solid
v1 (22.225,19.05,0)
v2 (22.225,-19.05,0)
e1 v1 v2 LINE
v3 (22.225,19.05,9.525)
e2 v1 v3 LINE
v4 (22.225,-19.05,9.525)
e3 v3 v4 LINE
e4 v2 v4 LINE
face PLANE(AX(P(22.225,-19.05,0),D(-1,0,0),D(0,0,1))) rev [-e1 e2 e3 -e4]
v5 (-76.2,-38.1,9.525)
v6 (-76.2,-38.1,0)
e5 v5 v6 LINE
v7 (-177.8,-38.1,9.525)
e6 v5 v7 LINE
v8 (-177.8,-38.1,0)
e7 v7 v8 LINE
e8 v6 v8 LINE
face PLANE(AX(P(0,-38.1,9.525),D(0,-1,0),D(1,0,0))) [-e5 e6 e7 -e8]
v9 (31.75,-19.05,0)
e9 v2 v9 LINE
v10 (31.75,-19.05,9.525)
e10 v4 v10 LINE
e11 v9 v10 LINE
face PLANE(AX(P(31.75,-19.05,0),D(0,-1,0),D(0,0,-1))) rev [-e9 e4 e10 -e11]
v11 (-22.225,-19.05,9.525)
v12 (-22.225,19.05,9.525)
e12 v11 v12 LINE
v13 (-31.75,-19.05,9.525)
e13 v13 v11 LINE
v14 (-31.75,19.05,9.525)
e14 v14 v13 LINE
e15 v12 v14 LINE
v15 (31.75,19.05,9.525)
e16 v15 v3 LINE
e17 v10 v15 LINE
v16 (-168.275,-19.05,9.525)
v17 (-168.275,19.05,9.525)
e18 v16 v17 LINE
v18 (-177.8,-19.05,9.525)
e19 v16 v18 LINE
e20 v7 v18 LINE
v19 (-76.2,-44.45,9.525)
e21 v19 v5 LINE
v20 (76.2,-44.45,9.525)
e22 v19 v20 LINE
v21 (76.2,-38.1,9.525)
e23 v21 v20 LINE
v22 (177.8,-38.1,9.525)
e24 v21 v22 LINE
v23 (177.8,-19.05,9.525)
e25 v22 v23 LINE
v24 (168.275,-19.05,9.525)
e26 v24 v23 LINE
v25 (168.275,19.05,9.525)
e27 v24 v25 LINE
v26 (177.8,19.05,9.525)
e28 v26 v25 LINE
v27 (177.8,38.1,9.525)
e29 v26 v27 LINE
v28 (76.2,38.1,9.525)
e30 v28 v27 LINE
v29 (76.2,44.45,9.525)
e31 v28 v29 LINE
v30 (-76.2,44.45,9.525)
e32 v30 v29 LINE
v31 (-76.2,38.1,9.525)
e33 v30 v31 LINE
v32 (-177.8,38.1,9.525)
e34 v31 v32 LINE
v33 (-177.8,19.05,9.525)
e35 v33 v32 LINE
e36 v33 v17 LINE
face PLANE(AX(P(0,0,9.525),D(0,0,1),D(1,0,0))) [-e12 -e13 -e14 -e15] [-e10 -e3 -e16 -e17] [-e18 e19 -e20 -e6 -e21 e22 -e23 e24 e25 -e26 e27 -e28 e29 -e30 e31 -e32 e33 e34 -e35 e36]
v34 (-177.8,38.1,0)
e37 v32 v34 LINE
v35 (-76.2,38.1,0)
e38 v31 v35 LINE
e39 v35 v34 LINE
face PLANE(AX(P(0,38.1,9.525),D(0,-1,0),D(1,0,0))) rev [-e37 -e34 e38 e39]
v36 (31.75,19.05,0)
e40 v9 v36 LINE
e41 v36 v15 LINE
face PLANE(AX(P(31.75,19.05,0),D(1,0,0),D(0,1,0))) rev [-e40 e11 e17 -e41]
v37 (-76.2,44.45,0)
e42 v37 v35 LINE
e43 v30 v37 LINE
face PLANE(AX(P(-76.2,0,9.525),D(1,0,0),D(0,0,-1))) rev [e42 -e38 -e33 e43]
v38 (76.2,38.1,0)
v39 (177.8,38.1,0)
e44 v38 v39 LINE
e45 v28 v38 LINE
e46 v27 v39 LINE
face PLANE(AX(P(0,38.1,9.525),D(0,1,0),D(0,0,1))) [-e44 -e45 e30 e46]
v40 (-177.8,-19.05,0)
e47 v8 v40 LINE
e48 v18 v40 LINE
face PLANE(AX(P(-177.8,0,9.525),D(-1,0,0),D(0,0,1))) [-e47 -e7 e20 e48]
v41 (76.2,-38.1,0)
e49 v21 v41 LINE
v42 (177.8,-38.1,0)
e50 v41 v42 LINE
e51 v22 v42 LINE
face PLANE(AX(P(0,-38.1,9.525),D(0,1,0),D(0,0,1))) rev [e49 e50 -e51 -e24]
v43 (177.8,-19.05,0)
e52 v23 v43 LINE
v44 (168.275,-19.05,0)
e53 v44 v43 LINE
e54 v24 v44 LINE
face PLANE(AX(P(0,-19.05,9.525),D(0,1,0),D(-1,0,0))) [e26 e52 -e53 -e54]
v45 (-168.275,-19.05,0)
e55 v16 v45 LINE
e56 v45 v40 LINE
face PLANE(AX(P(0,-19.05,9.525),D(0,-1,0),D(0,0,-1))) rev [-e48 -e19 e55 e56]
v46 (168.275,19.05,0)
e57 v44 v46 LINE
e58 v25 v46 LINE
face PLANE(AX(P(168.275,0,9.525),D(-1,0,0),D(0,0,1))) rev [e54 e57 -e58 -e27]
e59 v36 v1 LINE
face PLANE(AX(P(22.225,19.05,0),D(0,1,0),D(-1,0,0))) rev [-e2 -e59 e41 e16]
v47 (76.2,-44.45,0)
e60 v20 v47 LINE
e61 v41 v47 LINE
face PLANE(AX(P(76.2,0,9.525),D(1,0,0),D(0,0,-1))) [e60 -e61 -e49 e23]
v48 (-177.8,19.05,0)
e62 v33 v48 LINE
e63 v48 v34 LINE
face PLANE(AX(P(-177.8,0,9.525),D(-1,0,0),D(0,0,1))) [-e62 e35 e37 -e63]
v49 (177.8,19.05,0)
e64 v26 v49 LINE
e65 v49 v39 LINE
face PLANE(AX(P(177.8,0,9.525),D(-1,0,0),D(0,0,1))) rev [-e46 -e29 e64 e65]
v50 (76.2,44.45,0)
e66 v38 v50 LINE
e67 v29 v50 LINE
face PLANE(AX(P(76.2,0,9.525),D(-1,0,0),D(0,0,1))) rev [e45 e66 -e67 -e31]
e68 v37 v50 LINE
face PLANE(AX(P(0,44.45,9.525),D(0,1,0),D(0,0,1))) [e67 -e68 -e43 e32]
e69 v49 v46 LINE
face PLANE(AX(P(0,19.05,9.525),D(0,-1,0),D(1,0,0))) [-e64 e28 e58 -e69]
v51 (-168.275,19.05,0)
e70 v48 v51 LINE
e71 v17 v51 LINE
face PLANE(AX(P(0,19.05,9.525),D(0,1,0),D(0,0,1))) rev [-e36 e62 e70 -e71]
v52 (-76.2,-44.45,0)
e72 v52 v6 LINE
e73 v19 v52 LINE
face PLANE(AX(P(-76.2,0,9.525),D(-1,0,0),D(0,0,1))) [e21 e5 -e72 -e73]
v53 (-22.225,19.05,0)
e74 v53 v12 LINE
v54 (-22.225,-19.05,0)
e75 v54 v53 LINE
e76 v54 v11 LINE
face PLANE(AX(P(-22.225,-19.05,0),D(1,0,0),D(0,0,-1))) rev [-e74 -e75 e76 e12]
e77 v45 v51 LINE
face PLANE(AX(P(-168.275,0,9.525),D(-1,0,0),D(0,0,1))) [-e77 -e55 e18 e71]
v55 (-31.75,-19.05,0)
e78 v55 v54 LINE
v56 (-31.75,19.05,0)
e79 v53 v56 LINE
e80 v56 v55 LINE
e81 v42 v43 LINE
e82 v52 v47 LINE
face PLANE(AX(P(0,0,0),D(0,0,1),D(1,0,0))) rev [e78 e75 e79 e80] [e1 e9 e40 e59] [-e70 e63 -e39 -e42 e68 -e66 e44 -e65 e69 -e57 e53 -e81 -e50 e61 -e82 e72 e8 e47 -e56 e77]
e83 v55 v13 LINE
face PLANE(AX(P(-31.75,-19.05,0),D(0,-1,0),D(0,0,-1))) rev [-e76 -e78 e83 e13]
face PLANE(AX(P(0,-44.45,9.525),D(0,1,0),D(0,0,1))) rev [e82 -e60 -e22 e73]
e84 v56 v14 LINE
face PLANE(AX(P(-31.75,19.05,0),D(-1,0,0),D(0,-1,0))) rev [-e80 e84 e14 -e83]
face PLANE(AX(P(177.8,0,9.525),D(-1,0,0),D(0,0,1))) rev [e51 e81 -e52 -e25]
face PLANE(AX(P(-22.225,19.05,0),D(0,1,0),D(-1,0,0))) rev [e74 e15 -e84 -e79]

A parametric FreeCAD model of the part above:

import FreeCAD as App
import Part
import Sketcher

V = App.Vector
Q = App.Units.Quantity


def add_polygon(sketch, points):
    """Adds a closed chain of lines whose ends are joined by coincident constraints."""
    first, n = sketch.GeometryCount, len(points)
    for a, b in zip(points, points[1:] + points[:1]):
        sketch.addGeometry(Part.LineSegment(App.Vector(*a, 0), App.Vector(*b, 0)), False)
    for i in range(n):
        sketch.addConstraint(Sketcher.Constraint("Coincident", first + i, 2, first + (i + 1) % n, 1))

doc = App.newDocument("Part")
body = doc.addObject("PartDesign::Body", "Body")

sketch1 = body.newObject("Sketcher::SketchObject", "Sketch")
sketch1.AttachmentSupport = (doc.getObject("XY_Plane"), [""])
sketch1.MapMode = "FlatFace"
add_polygon(sketch1, [(-76, -38), (-76, -44), (76, -44), (76, -38), (178, -38), (178, -19), (168, -19), (168, 19), (178, 19), (178, 38), (76, 38), (76, 44), (-76, 44), (-76, 38), (-178, 38), (-178, 19), (-168, 19), (-168, -19), (-178, -19), (-178, -38)])
sketch1.addConstraint(Sketcher.Constraint("Vertical", 0))
sketch1.addConstraint(Sketcher.Constraint("Horizontal", 1))
sketch1.addConstraint(Sketcher.Constraint("Vertical", 2))
sketch1.addConstraint(Sketcher.Constraint("Horizontal", 3))
sketch1.addConstraint(Sketcher.Constraint("Vertical", 4))
sketch1.addConstraint(Sketcher.Constraint("Horizontal", 5))
sketch1.addConstraint(Sketcher.Constraint("Vertical", 6))
sketch1.addConstraint(Sketcher.Constraint("Horizontal", 7))
sketch1.addConstraint(Sketcher.Constraint("Vertical", 8))
sketch1.addConstraint(Sketcher.Constraint("Horizontal", 9))
sketch1.addConstraint(Sketcher.Constraint("Vertical", 10))
sketch1.addConstraint(Sketcher.Constraint("Horizontal", 11))
sketch1.addConstraint(Sketcher.Constraint("Vertical", 12))
sketch1.addConstraint(Sketcher.Constraint("Horizontal", 13))
sketch1.addConstraint(Sketcher.Constraint("Vertical", 14))
sketch1.addConstraint(Sketcher.Constraint("Horizontal", 15))
sketch1.addConstraint(Sketcher.Constraint("Vertical", 16))
sketch1.addConstraint(Sketcher.Constraint("Horizontal", 17))
sketch1.addConstraint(Sketcher.Constraint("Vertical", 18))
sketch1.addConstraint(Sketcher.Constraint("Horizontal", 19))
sketch1.addConstraint(Sketcher.Constraint("Symmetric", 0, 2, 10, 2, -1, 1))
sketch1.addConstraint(Sketcher.Constraint("Symmetric", 2, 2, 12, 2, -1, 1))
sketch1.addConstraint(Sketcher.Constraint("Symmetric", 4, 2, 14, 2, -1, 1))
sketch1.addConstraint(Sketcher.Constraint("Symmetric", 6, 2, 16, 2, -1, 1))
sketch1.addConstraint(Sketcher.Constraint("Symmetric", 8, 2, 18, 2, -1, 1))
sketch1.addConstraint(Sketcher.Constraint("Symmetric", 9, 2, 12, 2, -2))
sketch1.addConstraint(Sketcher.Constraint("Symmetric", 7, 2, 14, 2, -2))
sketch1.addConstraint(Sketcher.Constraint("DistanceX", 1, 1, 1, 2, Q("6 in")))
sketch1.addConstraint(Sketcher.Constraint("DistanceX", 3, 1, 3, 2, Q("4 in")))
sketch1.addConstraint(Sketcher.Constraint("DistanceY", 6, 1, 6, 2, Q("1.5 in")))
sketch1.addConstraint(Sketcher.Constraint("DistanceY", 1, 2, 4, 2, Q("1 in")))
sketch1.addConstraint(Sketcher.Constraint("DistanceY", 3, 2, 8, 2, Q("3 in")))
sketch1.addConstraint(Sketcher.Constraint("DistanceX", 5, 2, 5, 1, Q("0.375 in")))
pad1 = body.newObject("PartDesign::Pad", "Pad")
pad1.Profile = sketch1
pad1.Length = Q("0.375 in")

sketch2 = body.newObject("Sketcher::SketchObject", "Sketch001")
sketch2.AttachmentSupport = (doc.getObject("XY_Plane"), [""])
sketch2.MapMode = "FlatFace"
sketch2.AttachmentOffset = App.Placement(V(0, 0, 0.375 * 25.4), App.Rotation())
add_polygon(sketch2, [(-32, 19), (-32, -19), (-22, -19), (-22, 19)])
add_polygon(sketch2, [(22, 19), (22, -19), (32, -19), (32, 19)])
sketch2.addConstraint(Sketcher.Constraint("Vertical", 0))
sketch2.addConstraint(Sketcher.Constraint("Horizontal", 1))
sketch2.addConstraint(Sketcher.Constraint("Vertical", 2))
sketch2.addConstraint(Sketcher.Constraint("Horizontal", 3))
sketch2.addConstraint(Sketcher.Constraint("Vertical", 4))
sketch2.addConstraint(Sketcher.Constraint("Horizontal", 5))
sketch2.addConstraint(Sketcher.Constraint("Vertical", 6))
sketch2.addConstraint(Sketcher.Constraint("Horizontal", 7))
sketch2.addConstraint(Sketcher.Constraint("Symmetric", 2, 2, 4, 2, -1, 1))
sketch2.addConstraint(Sketcher.Constraint("Symmetric", 0, 2, 6, 2, -1, 1))
sketch2.addConstraint(Sketcher.Constraint("Horizontal", 1, 2, 4, 2))
sketch2.addConstraint(Sketcher.Constraint("DistanceY", 0, 2, 0, 1, Q("1.5 in")))
sketch2.addConstraint(Sketcher.Constraint("DistanceX", 0, 2, 5, 2, Q("2.5 in")))
sketch2.addConstraint(Sketcher.Constraint("DistanceX", 1, 1, 1, 2, Q("0.375 in")))
pocket1 = body.newObject("PartDesign::Pocket", "Pocket")
pocket1.Profile = sketch2
pocket1.Type = "ThroughAll"

doc.recompute()
